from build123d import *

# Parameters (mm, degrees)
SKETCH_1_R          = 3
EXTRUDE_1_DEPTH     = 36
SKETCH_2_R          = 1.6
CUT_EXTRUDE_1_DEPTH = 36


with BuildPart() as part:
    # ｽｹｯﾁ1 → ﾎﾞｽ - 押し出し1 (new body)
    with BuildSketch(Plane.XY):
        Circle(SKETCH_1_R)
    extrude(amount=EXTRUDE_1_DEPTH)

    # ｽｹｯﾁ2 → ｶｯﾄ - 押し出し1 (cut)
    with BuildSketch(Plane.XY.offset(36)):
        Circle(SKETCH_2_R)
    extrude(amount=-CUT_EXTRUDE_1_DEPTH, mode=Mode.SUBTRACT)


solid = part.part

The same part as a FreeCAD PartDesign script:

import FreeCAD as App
import Part
import Sketcher

V = App.Vector
Q = App.Units.Quantity

doc = App.newDocument("Part")
body = doc.addObject("PartDesign::Body", "Body")

# Sketch on XY plane
sketch1 = body.newObject("Sketcher::SketchObject", "Sketch")
sketch1.AttachmentSupport = (doc.getObject("XY_Plane"), [""])
sketch1.MapMode = "FlatFace"
sketch1.addGeometry(Part.Circle(V(0, 0, 0), V(0, 0, 1), 3), False)
sketch1.addConstraint([
    Sketcher.Constraint("Coincident", 0, 3, -1, 1),
    Sketcher.Constraint("Diameter", 0, Q("6 mm")),
])
pad1 = body.newObject("PartDesign::Pad", "Pad")
pad1.Profile = sketch1
pad1.Length = 36

# Sketch on XY plane
sketch2 = body.newObject("Sketcher::SketchObject", "Sketch001")
sketch2.AttachmentSupport = (doc.getObject("XY_Plane"), [""])
sketch2.MapMode = "FlatFace"
sketch2.AttachmentOffset = App.Placement(V(0, 0, 36), App.Rotation())
sketch2.addGeometry(Part.Circle(V(0, 0, 0), V(0, 0, 1), 1.6), False)
sketch2.addConstraint([
    Sketcher.Constraint("Coincident", 0, 3, -1, 1),
    Sketcher.Constraint("Diameter", 0, Q("3.2 mm")),
])
pocket1 = body.newObject("PartDesign::Pocket", "Pocket")
pocket1.Profile = sketch2
pocket1.Length = 36

doc.recompute()
